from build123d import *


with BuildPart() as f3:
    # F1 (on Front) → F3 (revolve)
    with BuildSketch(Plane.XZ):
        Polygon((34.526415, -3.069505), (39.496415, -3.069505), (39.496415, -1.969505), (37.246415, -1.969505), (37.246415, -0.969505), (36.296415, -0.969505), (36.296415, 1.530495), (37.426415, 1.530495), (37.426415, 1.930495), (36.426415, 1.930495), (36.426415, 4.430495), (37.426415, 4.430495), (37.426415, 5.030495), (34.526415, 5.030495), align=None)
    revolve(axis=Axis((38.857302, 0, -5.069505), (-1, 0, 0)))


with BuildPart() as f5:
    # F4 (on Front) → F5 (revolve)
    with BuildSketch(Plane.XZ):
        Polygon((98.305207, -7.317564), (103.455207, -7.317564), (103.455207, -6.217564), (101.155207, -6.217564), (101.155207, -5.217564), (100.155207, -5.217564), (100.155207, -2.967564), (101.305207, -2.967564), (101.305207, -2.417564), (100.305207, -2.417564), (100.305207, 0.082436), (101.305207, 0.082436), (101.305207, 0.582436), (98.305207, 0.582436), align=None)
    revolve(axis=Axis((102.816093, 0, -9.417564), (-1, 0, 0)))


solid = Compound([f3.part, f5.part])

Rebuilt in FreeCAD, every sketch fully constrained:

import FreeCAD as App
import Part
import Sketcher

V = App.Vector

doc = App.newDocument("Part")
body = doc.addObject("PartDesign::Body", "Body")

# Sketch on XZ plane
sketch1 = body.newObject("Sketcher::SketchObject", "Sketch")
sketch1.AttachmentSupport = (doc.getObject("XZ_Plane"), [""])
sketch1.MapMode = "FlatFace"
sketch1.addGeometry([
    Part.LineSegment(V(34.53, -3.07, 0), V(39.5, -3.07, 0)),  # 0
    Part.LineSegment(V(39.5, -3.07, 0), V(39.5, -1.97, 0)),  # 1
    Part.LineSegment(V(39.5, -1.97, 0), V(37.25, -1.97, 0)),  # 2
    Part.LineSegment(V(37.25, -1.97, 0), V(37.25, -0.97, 0)),  # 3
    Part.LineSegment(V(37.25, -0.97, 0), V(36.3, -0.97, 0)),  # 4
    Part.LineSegment(V(36.3, -0.97, 0), V(36.3, 1.53, 0)),  # 5
    Part.LineSegment(V(36.3, 1.53, 0), V(37.43, 1.53, 0)),  # 6
    Part.LineSegment(V(37.43, 1.53, 0), V(37.43, 1.93, 0)),  # 7
    Part.LineSegment(V(37.43, 1.93, 0), V(36.43, 1.93, 0)),  # 8
    Part.LineSegment(V(36.43, 1.93, 0), V(36.43, 4.43, 0)),  # 9
    Part.LineSegment(V(36.43, 4.43, 0), V(37.43, 4.43, 0)),  # 10
    Part.LineSegment(V(37.43, 4.43, 0), V(37.43, 5.03, 0)),  # 11
    Part.LineSegment(V(37.43, 5.03, 0), V(34.53, 5.03, 0)),  # 12
    Part.LineSegment(V(34.53, 5.03, 0), V(34.53, -3.07, 0)),  # 13
], False)
sketch1.addGeometry(Part.LineSegment(V(39.5, -5.07, 0), V(34.53, -5.07, 0)), True)  # axis
sketch1.addConstraint([
    Sketcher.Constraint("Coincident", 0, 2, 1, 1),
    Sketcher.Constraint("Coincident", 1, 2, 2, 1),
    Sketcher.Constraint("Coincident", 2, 2, 3, 1),
    Sketcher.Constraint("Coincident", 3, 2, 4, 1),
    Sketcher.Constraint("Coincident", 4, 2, 5, 1),
    Sketcher.Constraint("Coincident", 5, 2, 6, 1),
    Sketcher.Constraint("Coincident", 6, 2, 7, 1),
    Sketcher.Constraint("Coincident", 7, 2, 8, 1),
    Sketcher.Constraint("Coincident", 8, 2, 9, 1),
    Sketcher.Constraint("Coincident", 9, 2, 10, 1),
    Sketcher.Constraint("Coincident", 10, 2, 11, 1),
    Sketcher.Constraint("Coincident", 11, 2, 12, 1),
    Sketcher.Constraint("Coincident", 12, 2, 13, 1),
    Sketcher.Constraint("Coincident", 13, 2, 0, 1),
    Sketcher.Constraint("Horizontal", 0),
    Sketcher.Constraint("Vertical", 1),
    Sketcher.Constraint("Horizontal", 2),
    Sketcher.Constraint("Vertical", 3),
    Sketcher.Constraint("Horizontal", 4),
    Sketcher.Constraint("Vertical", 5),
    Sketcher.Constraint("Horizontal", 6),
    Sketcher.Constraint("Vertical", 7),
    Sketcher.Constraint("Horizontal", 8),
    Sketcher.Constraint("Vertical", 9),
    Sketcher.Constraint("Horizontal", 10),
    Sketcher.Constraint("Vertical", 11),
    Sketcher.Constraint("Horizontal", 12),
    Sketcher.Constraint("Vertical", 13),
    Sketcher.Constraint("Horizontal", 14),
    Sketcher.Constraint("Vertical", 7, 2, 10, 2),
    Sketcher.Constraint("Vertical", 1, 2, 14, 1),
    Sketcher.Constraint("Vertical", 13, 2, 14, 2),
    Sketcher.Constraint("Equal", 10, 3),
    Sketcher.Constraint("Equal", 5, 9),
    Sketcher.Constraint("DistanceX", 8, 2, 8, 1, 1.0),
    Sketcher.Constraint("DistanceX", 12, 2, 12, 1, 2.9),
    Sketcher.Constraint("DistanceY", 1, 1, 1, 2, 1.1),
    Sketcher.Constraint("DistanceY", 5, 1, 5, 2, 2.5),
    Sketcher.Constraint("DistanceY", 7, 1, 7, 2, 0.4),
    Sketcher.Constraint("DistanceY", 11, 1, 11, 2, 0.6),
    Sketcher.Constraint("DistanceY", 14, 1, 0, 2, 2.0),
    Sketcher.Constraint("DistanceX", 0, 1, 0, 2, 4.97),
    Sketcher.Constraint("DistanceX", 2, 2, 2, 1, 2.25),
    Sketcher.Constraint("DistanceX", 4, 2, 4, 1, 0.95),
    Sketcher.Constraint("DistanceX", -1, 1, 0, 2, 39.496415),
    Sketcher.Constraint("DistanceY", 0, 2, -1, 1, 3.069505),
])
revolution = body.newObject("PartDesign::Revolution", "Revolution")
revolution.Profile = sketch1
revolution.ReferenceAxis = (sketch1, ["Axis0"])
revolution.Angle = 360
body2 = doc.addObject("PartDesign::Body", "Body001")

# Sketch on XZ plane
sketch2 = body2.newObject("Sketcher::SketchObject", "Sketch001")
sketch2.AttachmentSupport = (doc.getObject("XZ_Plane001"), [""])
sketch2.MapMode = "FlatFace"
sketch2.addGeometry([
    Part.LineSegment(V(98.31, -7.32, 0), V(103.46, -7.32, 0)),  # 0
    Part.LineSegment(V(103.46, -7.32, 0), V(103.46, -6.22, 0)),  # 1
    Part.LineSegment(V(103.46, -6.22, 0), V(101.16, -6.22, 0)),  # 2
    Part.LineSegment(V(101.16, -6.22, 0), V(101.16, -5.22, 0)),  # 3
    Part.LineSegment(V(101.16, -5.22, 0), V(100.16, -5.22, 0)),  # 4
    Part.LineSegment(V(100.16, -5.22, 0), V(100.16, -2.97, 0)),  # 5
    Part.LineSegment(V(100.16, -2.97, 0), V(101.31, -2.97, 0)),  # 6
    Part.LineSegment(V(101.31, -2.97, 0), V(101.31, -2.42, 0)),  # 7
    Part.LineSegment(V(101.31, -2.42, 0), V(100.31, -2.42, 0)),  # 8
    Part.LineSegment(V(100.31, -2.42, 0), V(100.31, 0.08, 0)),  # 9
    Part.LineSegment(V(100.31, 0.08, 0), V(101.31, 0.08, 0)),  # 10
    Part.LineSegment(V(101.31, 0.08, 0), V(101.31, 0.58, 0)),  # 11
    Part.LineSegment(V(101.31, 0.58, 0), V(98.31, 0.58, 0)),  # 12
    Part.LineSegment(V(98.31, 0.58, 0), V(98.31, -7.32, 0)),  # 13
], False)
sketch2.addGeometry(Part.LineSegment(V(103.46, -9.42, 0), V(98.31, -9.42, 0)), True)  # axis
sketch2.addConstraint([
    Sketcher.Constraint("Coincident", 0, 2, 1, 1),
    Sketcher.Constraint("Coincident", 1, 2, 2, 1),
    Sketcher.Constraint("Coincident", 2, 2, 3, 1),
    Sketcher.Constraint("Coincident", 3, 2, 4, 1),
    Sketcher.Constraint("Coincident", 4, 2, 5, 1),
    Sketcher.Constraint("Coincident", 5, 2, 6, 1),
    Sketcher.Constraint("Coincident", 6, 2, 7, 1),
    Sketcher.Constraint("Coincident", 7, 2, 8, 1),
    Sketcher.Constraint("Coincident", 8, 2, 9, 1),
    Sketcher.Constraint("Coincident", 9, 2, 10, 1),
    Sketcher.Constraint("Coincident", 10, 2, 11, 1),
    Sketcher.Constraint("Coincident", 11, 2, 12, 1),
    Sketcher.Constraint("Coincident", 12, 2, 13, 1),
    Sketcher.Constraint("Coincident", 13, 2, 0, 1),
    Sketcher.Constraint("Horizontal", 0),
    Sketcher.Constraint("Vertical", 1),
    Sketcher.Constraint("Horizontal", 2),
    Sketcher.Constraint("Vertical", 3),
    Sketcher.Constraint("Horizontal", 4),
    Sketcher.Constraint("Vertical", 5),
    Sketcher.Constraint("Horizontal", 6),
    Sketcher.Constraint("Vertical", 7),
    Sketcher.Constraint("Horizontal", 8),
    Sketcher.Constraint("Vertical", 9),
    Sketcher.Constraint("Horizontal", 10),
    Sketcher.Constraint("Vertical", 11),
    Sketcher.Constraint("Horizontal", 12),
    Sketcher.Constraint("Vertical", 13),
    Sketcher.Constraint("Horizontal", 14),
    Sketcher.Constraint("Vertical", 7, 2, 10, 2),
    Sketcher.Constraint("Vertical", 1, 2, 14, 1),
    Sketcher.Constraint("Vertical", 13, 2, 14, 2),
    Sketcher.Constraint("Equal", 4, 8),
    Sketcher.Constraint("Equal", 10, 3),
    Sketcher.Constraint("DistanceX", 4, 2, 4, 1, 1.0),
    Sketcher.Constraint("DistanceX", 12, 2, 12, 1, 3.0),
    Sketcher.Constraint("DistanceX", 2, 2, 2, 1, 2.3),
    Sketcher.Constraint("DistanceY", 1, 1, 1, 2, 1.1),
    Sketcher.Constraint("DistanceY", 9, 1, 9, 2, 2.5),
    Sketcher.Constraint("DistanceY", 11, 1, 11, 2, 0.5),
    Sketcher.Constraint("DistanceY", 13, 2, 13, 1, 7.9),
    Sketcher.Constraint("DistanceX", 0, 1, 0, 2, 5.15),
    Sketcher.Constraint("DistanceY", 5, 1, 5, 2, 2.25),
    Sketcher.Constraint("DistanceY", 14, 1, 0, 2, 2.1),
    Sketcher.Constraint("DistanceX", -1, 1, 0, 2, 103.455207),
    Sketcher.Constraint("DistanceY", 0, 2, -1, 1, 7.317564),
])
revolution2 = body2.newObject("PartDesign::Revolution", "Revolution001")
revolution2.Profile = sketch2
revolution2.ReferenceAxis = (sketch2, ["Axis0"])
revolution2.Angle = 360

doc.recompute()
